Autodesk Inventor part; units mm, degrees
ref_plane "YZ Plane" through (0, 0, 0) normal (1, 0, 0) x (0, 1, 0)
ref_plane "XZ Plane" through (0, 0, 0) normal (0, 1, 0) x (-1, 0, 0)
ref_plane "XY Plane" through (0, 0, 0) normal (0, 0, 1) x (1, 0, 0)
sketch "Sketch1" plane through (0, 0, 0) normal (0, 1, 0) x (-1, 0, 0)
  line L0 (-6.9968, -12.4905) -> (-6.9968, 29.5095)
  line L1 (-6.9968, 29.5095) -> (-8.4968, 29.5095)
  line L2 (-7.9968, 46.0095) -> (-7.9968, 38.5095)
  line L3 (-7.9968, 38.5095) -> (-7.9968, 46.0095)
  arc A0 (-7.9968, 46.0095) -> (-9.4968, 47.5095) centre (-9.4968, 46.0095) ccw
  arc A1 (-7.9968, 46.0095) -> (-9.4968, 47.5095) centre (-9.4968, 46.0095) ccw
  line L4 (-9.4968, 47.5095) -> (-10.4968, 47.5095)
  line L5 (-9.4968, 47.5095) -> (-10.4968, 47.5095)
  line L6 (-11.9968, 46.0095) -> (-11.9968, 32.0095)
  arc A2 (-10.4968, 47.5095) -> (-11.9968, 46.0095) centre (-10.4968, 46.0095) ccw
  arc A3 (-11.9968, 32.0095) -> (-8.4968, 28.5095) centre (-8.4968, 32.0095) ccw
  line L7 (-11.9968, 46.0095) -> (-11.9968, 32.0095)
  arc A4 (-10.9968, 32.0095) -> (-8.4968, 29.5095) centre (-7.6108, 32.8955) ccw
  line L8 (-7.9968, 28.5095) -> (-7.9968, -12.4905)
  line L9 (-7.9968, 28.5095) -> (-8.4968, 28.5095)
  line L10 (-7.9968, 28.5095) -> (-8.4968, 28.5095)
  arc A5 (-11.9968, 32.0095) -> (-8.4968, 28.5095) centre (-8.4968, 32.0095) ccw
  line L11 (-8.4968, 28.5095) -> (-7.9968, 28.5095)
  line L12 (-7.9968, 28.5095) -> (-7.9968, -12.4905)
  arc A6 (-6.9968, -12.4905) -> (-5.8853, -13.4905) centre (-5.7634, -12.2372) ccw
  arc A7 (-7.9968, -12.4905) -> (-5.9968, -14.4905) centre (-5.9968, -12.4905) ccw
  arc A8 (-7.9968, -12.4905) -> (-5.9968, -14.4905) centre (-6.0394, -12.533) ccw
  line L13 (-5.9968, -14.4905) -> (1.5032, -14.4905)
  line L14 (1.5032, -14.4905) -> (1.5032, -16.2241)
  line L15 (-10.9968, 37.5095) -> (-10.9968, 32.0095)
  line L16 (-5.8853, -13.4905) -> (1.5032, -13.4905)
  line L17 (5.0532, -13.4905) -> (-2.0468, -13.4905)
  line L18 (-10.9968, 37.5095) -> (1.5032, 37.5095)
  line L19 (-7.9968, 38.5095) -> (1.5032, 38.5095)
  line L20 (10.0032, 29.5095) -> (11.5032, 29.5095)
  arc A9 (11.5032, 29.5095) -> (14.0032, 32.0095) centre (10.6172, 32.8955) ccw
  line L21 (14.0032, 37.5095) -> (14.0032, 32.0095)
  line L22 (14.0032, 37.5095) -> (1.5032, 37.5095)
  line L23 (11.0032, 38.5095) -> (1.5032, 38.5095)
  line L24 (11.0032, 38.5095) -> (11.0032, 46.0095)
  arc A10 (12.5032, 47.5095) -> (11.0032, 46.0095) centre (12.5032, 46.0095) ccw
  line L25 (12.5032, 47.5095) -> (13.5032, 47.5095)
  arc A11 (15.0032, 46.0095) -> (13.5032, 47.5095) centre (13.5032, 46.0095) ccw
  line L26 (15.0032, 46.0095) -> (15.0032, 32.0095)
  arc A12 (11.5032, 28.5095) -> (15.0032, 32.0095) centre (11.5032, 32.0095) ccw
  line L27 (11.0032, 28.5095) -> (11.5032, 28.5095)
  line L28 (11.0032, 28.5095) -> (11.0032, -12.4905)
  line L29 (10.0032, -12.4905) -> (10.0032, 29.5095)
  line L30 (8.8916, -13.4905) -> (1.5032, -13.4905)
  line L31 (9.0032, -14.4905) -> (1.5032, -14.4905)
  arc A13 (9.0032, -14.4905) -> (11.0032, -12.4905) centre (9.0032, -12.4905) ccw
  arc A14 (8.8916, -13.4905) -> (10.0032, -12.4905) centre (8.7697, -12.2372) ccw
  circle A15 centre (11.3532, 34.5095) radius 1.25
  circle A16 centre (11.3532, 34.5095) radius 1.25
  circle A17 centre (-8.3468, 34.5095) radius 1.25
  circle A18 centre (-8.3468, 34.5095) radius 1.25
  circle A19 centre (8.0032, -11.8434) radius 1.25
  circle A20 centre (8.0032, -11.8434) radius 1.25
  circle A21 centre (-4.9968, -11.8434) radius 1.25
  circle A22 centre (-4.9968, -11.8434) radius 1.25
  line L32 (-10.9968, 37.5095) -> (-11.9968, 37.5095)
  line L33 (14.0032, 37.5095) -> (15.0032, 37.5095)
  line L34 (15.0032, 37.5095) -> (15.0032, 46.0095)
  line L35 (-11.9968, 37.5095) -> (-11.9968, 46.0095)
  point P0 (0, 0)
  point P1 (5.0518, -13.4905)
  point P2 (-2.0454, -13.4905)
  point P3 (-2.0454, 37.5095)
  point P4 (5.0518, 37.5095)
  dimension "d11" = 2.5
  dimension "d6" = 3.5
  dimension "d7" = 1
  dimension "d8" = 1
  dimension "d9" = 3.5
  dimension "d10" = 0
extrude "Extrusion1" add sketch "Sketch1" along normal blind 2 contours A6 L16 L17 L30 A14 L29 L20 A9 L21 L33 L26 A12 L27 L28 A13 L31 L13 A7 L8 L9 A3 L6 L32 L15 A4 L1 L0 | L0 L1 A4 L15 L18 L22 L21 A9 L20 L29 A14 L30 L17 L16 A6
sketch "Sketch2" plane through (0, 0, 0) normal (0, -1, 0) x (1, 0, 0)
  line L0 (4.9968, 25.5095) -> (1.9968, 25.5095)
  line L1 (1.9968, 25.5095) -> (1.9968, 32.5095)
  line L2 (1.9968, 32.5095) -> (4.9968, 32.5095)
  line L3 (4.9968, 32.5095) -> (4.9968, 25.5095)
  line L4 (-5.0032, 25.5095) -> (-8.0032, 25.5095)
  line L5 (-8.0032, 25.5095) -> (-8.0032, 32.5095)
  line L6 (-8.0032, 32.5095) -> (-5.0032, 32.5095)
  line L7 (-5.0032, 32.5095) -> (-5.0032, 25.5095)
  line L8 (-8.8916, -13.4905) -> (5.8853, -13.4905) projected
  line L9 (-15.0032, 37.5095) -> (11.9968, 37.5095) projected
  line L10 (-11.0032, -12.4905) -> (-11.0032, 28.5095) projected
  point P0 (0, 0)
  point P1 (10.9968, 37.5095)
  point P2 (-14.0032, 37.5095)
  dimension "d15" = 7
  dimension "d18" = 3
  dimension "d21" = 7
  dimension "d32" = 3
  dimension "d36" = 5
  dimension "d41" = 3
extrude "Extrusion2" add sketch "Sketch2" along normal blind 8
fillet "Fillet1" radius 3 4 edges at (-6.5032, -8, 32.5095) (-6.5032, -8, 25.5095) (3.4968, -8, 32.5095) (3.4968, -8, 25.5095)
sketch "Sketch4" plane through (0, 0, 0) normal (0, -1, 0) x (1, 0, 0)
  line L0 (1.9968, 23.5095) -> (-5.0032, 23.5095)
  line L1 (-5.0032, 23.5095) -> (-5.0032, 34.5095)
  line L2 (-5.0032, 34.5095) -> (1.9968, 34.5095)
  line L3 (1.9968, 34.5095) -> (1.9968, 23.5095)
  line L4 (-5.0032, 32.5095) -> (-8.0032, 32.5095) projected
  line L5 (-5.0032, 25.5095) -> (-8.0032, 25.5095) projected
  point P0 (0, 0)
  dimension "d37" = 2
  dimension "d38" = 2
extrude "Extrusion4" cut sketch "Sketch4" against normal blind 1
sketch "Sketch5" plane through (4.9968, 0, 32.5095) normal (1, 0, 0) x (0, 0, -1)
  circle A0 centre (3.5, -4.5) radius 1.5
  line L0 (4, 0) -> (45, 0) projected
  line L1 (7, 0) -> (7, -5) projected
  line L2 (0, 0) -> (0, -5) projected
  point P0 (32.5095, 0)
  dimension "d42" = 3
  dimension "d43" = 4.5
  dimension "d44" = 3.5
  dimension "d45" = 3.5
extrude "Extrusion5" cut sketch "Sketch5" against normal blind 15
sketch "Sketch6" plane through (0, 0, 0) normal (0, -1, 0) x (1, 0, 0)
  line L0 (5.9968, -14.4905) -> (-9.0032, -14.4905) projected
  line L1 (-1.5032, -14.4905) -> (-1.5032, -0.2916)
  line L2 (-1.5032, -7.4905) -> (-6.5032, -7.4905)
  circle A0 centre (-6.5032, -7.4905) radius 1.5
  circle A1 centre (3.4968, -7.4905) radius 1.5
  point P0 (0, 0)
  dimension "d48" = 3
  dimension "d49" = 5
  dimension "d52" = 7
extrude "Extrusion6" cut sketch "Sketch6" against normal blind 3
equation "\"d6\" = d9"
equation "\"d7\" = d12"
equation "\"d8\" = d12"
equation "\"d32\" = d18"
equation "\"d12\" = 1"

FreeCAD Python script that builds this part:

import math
import FreeCAD as App
import Part
import Sketcher
from FreeCAD import Vector


def edges_at(feature, points):
    """Names of the edges that pass closest to the given points."""
    edges = feature.Shape.Edges
    near = lambda p: min(range(len(edges)), key=lambda i: edges[i].distToShape(Part.Vertex(*p))[0])
    return sorted({f"Edge{near(p) + 1}" for p in points})


def add_polygon(sketch, points):
    """Adds a closed chain of lines whose ends are joined by coincident constraints."""
    first, n = sketch.GeometryCount, len(points)
    for a, b in zip(points, points[1:] + points[:1]):
        sketch.addGeometry(Part.LineSegment(App.Vector(*a, 0), App.Vector(*b, 0)), False)
    for i in range(n):
        sketch.addConstraint(Sketcher.Constraint("Coincident", first + i, 2, first + (i + 1) % n, 1))

doc = App.newDocument("Part")
body = doc.addObject("PartDesign::Body", "Body")

sketch1 = doc.addObject("Sketcher::SketchObject", "Sketch")
body.addObject(sketch1)
sketch1.AttachmentSupport = (doc.XZ_Plane, [""])
sketch1.MapMode = "FlatFace"
sketch1.addGeometry(Part.LineSegment(Vector(-15, 37.5, 0), Vector(12, 37.5, 0)), False)
sketch1.addGeometry(Part.LineSegment(Vector(12, 37.5, 0), Vector(12, 32, 0)), False)
sketch1.addGeometry(Part.ArcOfCircle(Part.Circle(Vector(8.5, 32, 0), Vector(0, 0, 1), 3.5), math.radians(-90), math.radians(0)), False)
sketch1.addGeometry(Part.LineSegment(Vector(8.5, 28.5, 0), Vector(8, 28.5, 0)), False)
sketch1.addGeometry(Part.LineSegment(Vector(8, 28.5, 0), Vector(8, -12.5, 0)), False)
sketch1.addGeometry(Part.ArcOfCircle(Part.Circle(Vector(6, -12.5, 0), Vector(0, 0, 1), 2), math.radians(-90), math.radians(0)), False)
sketch1.addGeometry(Part.LineSegment(Vector(6, -14.5, 0), Vector(-9, -14.5, 0)), False)
sketch1.addGeometry(Part.ArcOfCircle(Part.Circle(Vector(-9, -12.5, 0), Vector(0, 0, 1), 2), math.radians(180), math.radians(270)), False)
sketch1.addGeometry(Part.LineSegment(Vector(-11, -12.5, 0), Vector(-11, 28.5, 0)), False)
sketch1.addGeometry(Part.LineSegment(Vector(-11, 28.5, 0), Vector(-11.5, 28.5, 0)), False)
sketch1.addGeometry(Part.ArcOfCircle(Part.Circle(Vector(-11.5, 32, 0), Vector(0, 0, 1), 3.5), math.radians(180), math.radians(270)), False)
sketch1.addGeometry(Part.LineSegment(Vector(-15, 32, 0), Vector(-15, 37.5, 0)), False)
sketch1.addGeometry(Part.Circle(Vector(8.3, 34.5, 0), Vector(0, 0, 1), 1.2), False)
sketch1.addGeometry(Part.Circle(Vector(-11.4, 34.5, 0), Vector(0, 0, 1), 1.2), False)
sketch1.addGeometry(Part.Circle(Vector(5, -11.8, 0), Vector(0, 0, 1), 1.2), False)
sketch1.addGeometry(Part.Circle(Vector(-8, -11.8, 0), Vector(0, 0, 1), 1.2), False)
sketch1.addConstraint(Sketcher.Constraint("Coincident", 0, 2, 1, 1))
sketch1.addConstraint(Sketcher.Constraint("Tangent", 1, 2, 2, 2))
sketch1.addConstraint(Sketcher.Constraint("Tangent", 2, 1, 3, 1))
sketch1.addConstraint(Sketcher.Constraint("Coincident", 3, 2, 4, 1))
sketch1.addConstraint(Sketcher.Constraint("Tangent", 4, 2, 5, 2))
sketch1.addConstraint(Sketcher.Constraint("Tangent", 5, 1, 6, 1))
sketch1.addConstraint(Sketcher.Constraint("Tangent", 6, 2, 7, 2))
sketch1.addConstraint(Sketcher.Constraint("Tangent", 7, 1, 8, 1))
sketch1.addConstraint(Sketcher.Constraint("Coincident", 8, 2, 9, 1))
sketch1.addConstraint(Sketcher.Constraint("Tangent", 9, 2, 10, 2))
sketch1.addConstraint(Sketcher.Constraint("Tangent", 10, 1, 11, 1))
sketch1.addConstraint(Sketcher.Constraint("Coincident", 11, 2, 0, 1))
sketch1.addConstraint(Sketcher.Constraint("Horizontal", 0))
sketch1.addConstraint(Sketcher.Constraint("Vertical", 1))
sketch1.addConstraint(Sketcher.Constraint("Horizontal", 3))
sketch1.addConstraint(Sketcher.Constraint("Vertical", 4))
sketch1.addConstraint(Sketcher.Constraint("Horizontal", 6))
sketch1.addConstraint(Sketcher.Constraint("Vertical", 8))
sketch1.addConstraint(Sketcher.Constraint("Horizontal", 9))
sketch1.addConstraint(Sketcher.Constraint("Vertical", 11))
sketch1.addConstraint(Sketcher.Constraint("Equal", 5, 7))
sketch1.addConstraint(Sketcher.Constraint("Equal", 2, 10))
sketch1.addConstraint(Sketcher.Constraint("Equal", 12, 13))
sketch1.addConstraint(Sketcher.Constraint("Equal", 13, 14))
sketch1.addConstraint(Sketcher.Constraint("Equal", 14, 15))
sketch1.addConstraint(Sketcher.Constraint("Horizontal", 2, 3, 10, 3))
sketch1.addConstraint(Sketcher.Constraint("Horizontal", 12, 3, 13, 3))
sketch1.addConstraint(Sketcher.Constraint("Horizontal", 14, 3, 15, 3))
sketch1.addConstraint(Sketcher.Constraint("Equal", 3, 9))
sketch1.addConstraint(Sketcher.Constraint("Diameter", 12, 2.5))
sketch1.addConstraint(Sketcher.Constraint("Radius", 2, 3.5))
sketch1.addConstraint(Sketcher.Constraint("Radius", 5, 2.0))
sketch1.addConstraint(Sketcher.Constraint("DistanceX", 14, 3, 5, 3, 1.0))
sketch1.addConstraint(Sketcher.Constraint("DistanceX", 7, 3, 15, 3, 1.0))
sketch1.addConstraint(Sketcher.Constraint("DistanceX", 5, 3, 2, 3, 2.5))
sketch1.addConstraint(Sketcher.Constraint("DistanceY", 2, 3, 12, 3, 2.5))
sketch1.addConstraint(Sketcher.Constraint("DistanceX", 0, 1, 0, 2, 27.0))
sketch1.addConstraint(Sketcher.Constraint("DistanceY", 4, 2, 4, 1, 41.0))
sketch1.addConstraint(Sketcher.Constraint("DistanceY", 1, 2, 1, 1, 5.5))
sketch1.addConstraint(Sketcher.Constraint("DistanceX", 13, 3, 12, 3, 19.7))
sketch1.addConstraint(Sketcher.Constraint("DistanceX", 12, 3, 2, 3, 0.15))
sketch1.addConstraint(Sketcher.Constraint("DistanceY", 5, 3, 14, 3, 0.647))
sketch1.addConstraint(Sketcher.Constraint("DistanceX", -1, 1, 2, 3, 8.4968))
sketch1.addConstraint(Sketcher.Constraint("DistanceY", -1, 1, 2, 3, 32.0095))
pad1 = doc.addObject("PartDesign::Pad", "Pad")
body.addObject(pad1)
pad1.Profile = sketch1
pad1.Length = 2
pad1.Reversed = True

sketch2 = doc.addObject("Sketcher::SketchObject", "Sketch001")
body.addObject(sketch2)
sketch2.AttachmentSupport = (doc.XZ_Plane, [""])
sketch2.MapMode = "FlatFace"
add_polygon(sketch2, [(2, 25.5), (5, 25.5), (5, 32.5), (2, 32.5)])
add_polygon(sketch2, [(-8, 25.5), (-5, 25.5), (-5, 32.5), (-8, 32.5)])
sketch2.addConstraint(Sketcher.Constraint("Horizontal", 0))
sketch2.addConstraint(Sketcher.Constraint("Vertical", 1))
sketch2.addConstraint(Sketcher.Constraint("Horizontal", 2))
sketch2.addConstraint(Sketcher.Constraint("Vertical", 3))
sketch2.addConstraint(Sketcher.Constraint("Horizontal", 4))
sketch2.addConstraint(Sketcher.Constraint("Vertical", 5))
sketch2.addConstraint(Sketcher.Constraint("Horizontal", 6))
sketch2.addConstraint(Sketcher.Constraint("Vertical", 7))
sketch2.addConstraint(Sketcher.Constraint("Horizontal", 3, 2, 4, 2))
sketch2.addConstraint(Sketcher.Constraint("Horizontal", 2, 2, 5, 2))
sketch2.addConstraint(Sketcher.Constraint("Equal", 2, 4))
sketch2.addConstraint(Sketcher.Constraint("DistanceX", 0, 1, 0, 2, 3.0))
sketch2.addConstraint(Sketcher.Constraint("DistanceY", 1, 1, 1, 2, 7.0))
sketch2.addConstraint(Sketcher.Constraint("DistanceX", 4, 2, 3, 2, 7.0))
sketch2.addConstraint(Sketcher.Constraint("DistanceX", -1, 1, 0, 2, 4.9968))
sketch2.addConstraint(Sketcher.Constraint("DistanceY", -1, 1, 0, 2, 25.5095))
pad2 = doc.addObject("PartDesign::Pad", "Pad001")
body.addObject(pad2)
pad2.Profile = sketch2
pad2.Length = 8
doc.recompute()

fillet = doc.addObject("PartDesign::Fillet", "Fillet")
body.addObject(fillet)
fillet.Base = (pad2, edges_at(pad2, [
    (-6.503, -8, 32.51),
    (-6.503, -8, 25.509),
    (3.497, -8, 32.51),
    (3.497, -8, 25.509),
]))
fillet.Radius = 3

sketch3 = doc.addObject("Sketcher::SketchObject", "Sketch002")
body.addObject(sketch3)
sketch3.AttachmentSupport = (doc.XZ_Plane, [""])
sketch3.MapMode = "FlatFace"
add_polygon(sketch3, [(-5, 24), (2, 24), (2, 35), (-5, 35)])
sketch3.addConstraint(Sketcher.Constraint("Horizontal", 0))
sketch3.addConstraint(Sketcher.Constraint("Vertical", 1))
sketch3.addConstraint(Sketcher.Constraint("Horizontal", 2))
sketch3.addConstraint(Sketcher.Constraint("Vertical", 3))
sketch3.addConstraint(Sketcher.Constraint("DistanceX", 0, 1, 0, 2, 7.0))
sketch3.addConstraint(Sketcher.Constraint("DistanceY", 1, 1, 1, 2, 11.0))
sketch3.addConstraint(Sketcher.Constraint("DistanceX", -1, 1, 0, 2, 1.9968))
sketch3.addConstraint(Sketcher.Constraint("DistanceY", -1, 1, 0, 2, 23.5095))
pocket1 = doc.addObject("PartDesign::Pocket", "Pocket")
body.addObject(pocket1)
pocket1.Profile = sketch3
pocket1.Length = 1

sketch4 = doc.addObject("Sketcher::SketchObject", "Sketch003")
body.addObject(sketch4)
sketch4.AttachmentSupport = (doc.YZ_Plane, [""])
sketch4.MapMode = "FlatFace"
sketch4.AttachmentOffset = App.Placement(Vector(0, 0, 4.9968), App.Rotation())
sketch4.addGeometry(Part.Circle(Vector(-4.5, 29, 0), Vector(0, 0, 1), 1.5), False)
sketch4.addConstraint(Sketcher.Constraint("Diameter", 0, 3.0))
sketch4.addConstraint(Sketcher.Constraint("DistanceX", 0, 3, -1, 1, 4.5))
sketch4.addConstraint(Sketcher.Constraint("DistanceY", -1, 1, 0, 3, 29.0095))
pocket2 = doc.addObject("PartDesign::Pocket", "Pocket001")
body.addObject(pocket2)
pocket2.Profile = sketch4
pocket2.Length = 15

sketch5 = doc.addObject("Sketcher::SketchObject", "Sketch004")
body.addObject(sketch5)
sketch5.AttachmentSupport = (doc.XZ_Plane, [""])
sketch5.MapMode = "FlatFace"
sketch5.addGeometry(Part.Circle(Vector(-6.5, -7.5, 0), Vector(0, 0, 1), 1.5), False)
sketch5.addGeometry(Part.Circle(Vector(3.5, -7.5, 0), Vector(0, 0, 1), 1.5), False)
sketch5.addConstraint(Sketcher.Constraint("Equal", 0, 1))
sketch5.addConstraint(Sketcher.Constraint("Horizontal", 0, 3, 1, 3))
sketch5.addConstraint(Sketcher.Constraint("Diameter", 0, 3.0))
sketch5.addConstraint(Sketcher.Constraint("DistanceX", 0, 3, 1, 3, 10.0))
sketch5.addConstraint(Sketcher.Constraint("DistanceX", 0, 3, -1, 1, 6.5032))
sketch5.addConstraint(Sketcher.Constraint("DistanceY", 0, 3, -1, 1, 7.4905))
pocket3 = doc.addObject("PartDesign::Pocket", "Pocket002")
body.addObject(pocket3)
pocket3.Profile = sketch5
pocket3.Length = 3

doc.recompute()
